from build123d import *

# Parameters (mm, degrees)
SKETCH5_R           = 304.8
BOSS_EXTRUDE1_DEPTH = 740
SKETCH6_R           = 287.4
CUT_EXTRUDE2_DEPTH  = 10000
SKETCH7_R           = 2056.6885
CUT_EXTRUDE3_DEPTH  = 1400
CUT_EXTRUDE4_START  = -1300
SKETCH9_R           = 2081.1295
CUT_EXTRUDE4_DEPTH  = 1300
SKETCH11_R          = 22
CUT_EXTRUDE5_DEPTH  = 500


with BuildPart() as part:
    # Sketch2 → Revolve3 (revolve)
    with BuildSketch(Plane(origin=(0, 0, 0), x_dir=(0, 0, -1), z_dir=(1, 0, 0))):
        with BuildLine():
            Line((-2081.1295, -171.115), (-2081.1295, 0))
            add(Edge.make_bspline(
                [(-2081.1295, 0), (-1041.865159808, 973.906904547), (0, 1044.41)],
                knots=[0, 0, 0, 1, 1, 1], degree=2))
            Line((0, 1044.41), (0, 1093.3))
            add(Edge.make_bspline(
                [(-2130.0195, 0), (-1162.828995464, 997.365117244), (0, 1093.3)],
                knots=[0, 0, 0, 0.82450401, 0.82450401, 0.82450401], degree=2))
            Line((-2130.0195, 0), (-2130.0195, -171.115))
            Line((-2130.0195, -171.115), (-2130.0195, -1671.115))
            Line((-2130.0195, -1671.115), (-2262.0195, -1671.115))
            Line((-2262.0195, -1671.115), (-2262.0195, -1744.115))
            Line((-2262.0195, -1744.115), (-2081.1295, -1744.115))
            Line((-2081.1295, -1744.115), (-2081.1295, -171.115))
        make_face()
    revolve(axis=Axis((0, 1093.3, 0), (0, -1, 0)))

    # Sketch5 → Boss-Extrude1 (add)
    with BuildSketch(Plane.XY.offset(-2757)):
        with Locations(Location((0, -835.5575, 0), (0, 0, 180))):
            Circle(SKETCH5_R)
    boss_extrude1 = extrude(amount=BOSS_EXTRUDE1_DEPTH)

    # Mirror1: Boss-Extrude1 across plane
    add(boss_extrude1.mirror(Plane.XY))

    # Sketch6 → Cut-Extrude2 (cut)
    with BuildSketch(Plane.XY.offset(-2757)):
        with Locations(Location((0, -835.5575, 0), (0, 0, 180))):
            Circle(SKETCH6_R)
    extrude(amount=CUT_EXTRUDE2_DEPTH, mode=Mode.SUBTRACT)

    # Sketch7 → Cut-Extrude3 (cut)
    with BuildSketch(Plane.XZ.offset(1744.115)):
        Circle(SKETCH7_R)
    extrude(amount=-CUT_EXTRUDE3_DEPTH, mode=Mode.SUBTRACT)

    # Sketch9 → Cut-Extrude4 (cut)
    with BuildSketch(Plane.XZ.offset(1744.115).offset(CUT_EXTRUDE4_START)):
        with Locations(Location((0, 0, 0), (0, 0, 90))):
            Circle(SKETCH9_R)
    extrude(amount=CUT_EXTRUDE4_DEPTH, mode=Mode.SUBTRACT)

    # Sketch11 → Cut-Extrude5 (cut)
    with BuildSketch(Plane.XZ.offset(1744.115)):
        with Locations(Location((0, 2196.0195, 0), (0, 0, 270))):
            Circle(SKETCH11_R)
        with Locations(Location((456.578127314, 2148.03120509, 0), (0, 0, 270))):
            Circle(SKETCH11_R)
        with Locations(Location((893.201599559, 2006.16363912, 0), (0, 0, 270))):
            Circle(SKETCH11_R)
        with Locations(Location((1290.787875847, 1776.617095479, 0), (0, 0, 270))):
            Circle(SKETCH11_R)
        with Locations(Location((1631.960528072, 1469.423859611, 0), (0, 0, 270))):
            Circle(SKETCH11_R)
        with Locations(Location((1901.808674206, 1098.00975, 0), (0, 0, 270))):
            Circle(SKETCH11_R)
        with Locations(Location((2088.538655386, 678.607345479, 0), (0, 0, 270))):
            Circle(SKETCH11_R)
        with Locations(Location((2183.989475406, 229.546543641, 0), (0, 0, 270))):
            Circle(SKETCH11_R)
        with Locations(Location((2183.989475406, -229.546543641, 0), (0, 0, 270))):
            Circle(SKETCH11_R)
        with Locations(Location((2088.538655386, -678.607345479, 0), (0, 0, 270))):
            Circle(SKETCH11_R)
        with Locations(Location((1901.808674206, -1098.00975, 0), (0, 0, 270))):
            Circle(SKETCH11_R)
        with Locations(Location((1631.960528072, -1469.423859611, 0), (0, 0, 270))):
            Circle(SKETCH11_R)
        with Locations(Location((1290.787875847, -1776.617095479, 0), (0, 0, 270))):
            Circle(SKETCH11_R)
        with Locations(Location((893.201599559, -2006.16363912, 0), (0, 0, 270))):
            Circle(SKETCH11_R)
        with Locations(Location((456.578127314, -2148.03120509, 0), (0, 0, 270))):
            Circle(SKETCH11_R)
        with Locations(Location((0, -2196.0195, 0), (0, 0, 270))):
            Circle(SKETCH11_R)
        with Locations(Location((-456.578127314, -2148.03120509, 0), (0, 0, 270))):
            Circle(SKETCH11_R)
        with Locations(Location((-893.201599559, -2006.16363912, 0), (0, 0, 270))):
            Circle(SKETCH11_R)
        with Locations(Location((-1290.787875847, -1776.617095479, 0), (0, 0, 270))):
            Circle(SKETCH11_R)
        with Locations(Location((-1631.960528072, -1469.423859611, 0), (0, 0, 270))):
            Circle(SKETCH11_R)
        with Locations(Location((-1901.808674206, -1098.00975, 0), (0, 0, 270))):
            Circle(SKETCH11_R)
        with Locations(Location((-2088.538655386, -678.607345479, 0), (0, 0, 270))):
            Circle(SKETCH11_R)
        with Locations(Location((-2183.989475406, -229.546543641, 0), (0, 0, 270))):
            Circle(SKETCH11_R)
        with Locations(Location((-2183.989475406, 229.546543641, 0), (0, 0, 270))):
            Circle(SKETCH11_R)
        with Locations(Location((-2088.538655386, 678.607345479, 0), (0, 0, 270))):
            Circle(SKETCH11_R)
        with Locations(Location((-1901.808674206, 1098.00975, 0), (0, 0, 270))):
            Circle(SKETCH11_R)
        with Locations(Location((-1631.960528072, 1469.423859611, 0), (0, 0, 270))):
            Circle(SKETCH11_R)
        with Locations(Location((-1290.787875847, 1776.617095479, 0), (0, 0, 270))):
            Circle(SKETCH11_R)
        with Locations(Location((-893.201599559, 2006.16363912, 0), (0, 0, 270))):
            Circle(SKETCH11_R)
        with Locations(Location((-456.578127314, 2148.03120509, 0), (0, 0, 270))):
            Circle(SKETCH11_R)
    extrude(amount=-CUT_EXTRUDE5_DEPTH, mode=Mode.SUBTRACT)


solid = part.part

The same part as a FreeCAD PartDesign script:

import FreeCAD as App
import Part
import Sketcher
Q = App.Units.Quantity

doc = App.newDocument("Part")
body = doc.addObject("PartDesign::Body", "Body")

# Sketch on YZ plane
sketch1 = body.newObject("Sketcher::SketchObject", "Sketch")
sketch1.AttachmentSupport = (doc.getObject("YZ_Plane"), [""])
sketch1.MapMode = "FlatFace"
sketch1.addGeometry([
    Part.BSplineCurve([App.Vector(0, 2081.1295, 0), App.Vector(973.906905, 1041.86516, 0), App.Vector(1044.41, 0, 0)], [3, 3], [0, 1], False, 2, [1, 1, 1], False),  # 0
    Part.LineSegment(App.Vector(1044.41, 0, 0), App.Vector(1093.3, 0, 0)),  # 1
    Part.BSplineCurve([App.Vector(0, 2130.0195, 0), App.Vector(997.365117, 1162.828995, 0), App.Vector(1093.3, 0, 0)], [3, 3], [0, 0.82450401], False, 2, [1, 1, 1], False),  # 2
    Part.LineSegment(App.Vector(0, 2130.0195, 0), App.Vector(-1671.115, 2130.0195, 0)),  # 3
    Part.LineSegment(App.Vector(-1671.115, 2130.0195, 0), App.Vector(-1671.115, 2262.0195, 0)),  # 4
    Part.LineSegment(App.Vector(-1671.115, 2262.0195, 0), App.Vector(-1744.115, 2262.0195, 0)),  # 5
    Part.LineSegment(App.Vector(-1744.115, 2262.0195, 0), App.Vector(-1744.115, 2081.1295, 0)),  # 6
    Part.LineSegment(App.Vector(-1744.115, 2081.1295, 0), App.Vector(0, 2081.1295, 0)),  # 7
], False)
sketch1.addConstraint([
    Sketcher.Constraint("Block", 0),
    Sketcher.Constraint("Block", 2),
    Sketcher.Constraint("Coincident", 0, 2, 1, 1),
    Sketcher.Constraint("Coincident", 1, 2, 2, 2),
    Sketcher.Constraint("Coincident", 2, 1, 3, 1),
    Sketcher.Constraint("Coincident", 3, 2, 4, 1),
    Sketcher.Constraint("Coincident", 4, 2, 5, 1),
    Sketcher.Constraint("Coincident", 5, 2, 6, 1),
    Sketcher.Constraint("Coincident", 6, 2, 7, 1),
    Sketcher.Constraint("Coincident", 7, 2, 0, 1),
    Sketcher.Constraint("Horizontal", 3),
    Sketcher.Constraint("Vertical", 4),
    Sketcher.Constraint("Horizontal", 5),
    Sketcher.Constraint("Vertical", 6),
    Sketcher.Constraint("Horizontal", 7),
    Sketcher.Constraint("DistanceX", 5, 2, 5, 1, Q("73 mm")),
    Sketcher.Constraint("DistanceY", 4, 1, 4, 2, Q("132 mm")),
    Sketcher.Constraint("DistanceX", 3, 2, 3, 1, Q("1671.115 mm")),
])
revolution = body.newObject("PartDesign::Revolution", "Revolution")
revolution.Profile = sketch1
revolution.ReferenceAxis = (sketch1, ["H_Axis"])
revolution.Angle = 360

# Sketch on XY plane
sketch2 = body.newObject("Sketcher::SketchObject", "Sketch001")
sketch2.AttachmentSupport = (doc.getObject("XY_Plane"), [""])
sketch2.MapMode = "FlatFace"
sketch2.AttachmentOffset = App.Placement(App.Vector(0, 0, -2757), App.Rotation())
sketch2.addGeometry(Part.Circle(App.Vector(0, -835.5575, 0), App.Vector(0, 0, 1), 304.8), False)
sketch2.addConstraint([
    Sketcher.Constraint("PointOnObject", 0, 3, -2),
    Sketcher.Constraint("Diameter", 0, Q("609.6 mm")),
    Sketcher.Constraint("DistanceY", 0, 3, -1, 1, Q("835.5575 mm")),
])
pad1 = body.newObject("PartDesign::Pad", "Pad")
pad1.Profile = sketch2
pad1.Length = 740
doc.recompute()

mirrored = body.newObject("PartDesign::Mirrored", "Mirrored")
mirrored.Originals = [pad1]
mirrored.MirrorPlane = (doc.getObject("XY_Plane"), [""])
body.Tip = mirrored

# Sketch on XY plane
sketch3 = body.newObject("Sketcher::SketchObject", "Sketch002")
sketch3.AttachmentSupport = (doc.getObject("XY_Plane"), [""])
sketch3.MapMode = "FlatFace"
sketch3.AttachmentOffset = App.Placement(App.Vector(0, 0, -2757), App.Rotation())
sketch3.addGeometry(Part.Circle(App.Vector(0, -835.5575, 0), App.Vector(0, 0, 1), 287.4), False)
sketch3.addConstraint([
    Sketcher.Constraint("PointOnObject", 0, 3, -2),
    Sketcher.Constraint("Diameter", 0, Q("574.8 mm")),
    Sketcher.Constraint("DistanceY", 0, 3, -1, 1, Q("835.5575 mm")),
])
pocket1 = body.newObject("PartDesign::Pocket", "Pocket")
pocket1.Profile = sketch3
pocket1.Length = 10000
pocket1.Reversed = True

# Sketch on XZ plane
sketch4 = body.newObject("Sketcher::SketchObject", "Sketch003")
sketch4.AttachmentSupport = (doc.getObject("XZ_Plane"), [""])
sketch4.MapMode = "FlatFace"
sketch4.AttachmentOffset = App.Placement(App.Vector(0, 0, 1744.115), App.Rotation())
sketch4.addGeometry(Part.Circle(App.Vector(0, 0, 0), App.Vector(0, 0, 1), 2056.6885), False)
sketch4.addConstraint([
    Sketcher.Constraint("Coincident", 0, 3, -1, 1),
    Sketcher.Constraint("Diameter", 0, Q("4113.377 mm")),
])
pocket2 = body.newObject("PartDesign::Pocket", "Pocket001")
pocket2.Profile = sketch4
pocket2.Length = 1400

# Sketch on XZ plane
sketch5 = body.newObject("Sketcher::SketchObject", "Sketch004")
sketch5.AttachmentSupport = (doc.getObject("XZ_Plane"), [""])
sketch5.MapMode = "FlatFace"
sketch5.AttachmentOffset = App.Placement(App.Vector(0, 0, 444.115), App.Rotation())
sketch5.addGeometry(Part.Circle(App.Vector(0, 0, 0), App.Vector(0, 0, 1), 2081.1295), False)
sketch5.addConstraint([
    Sketcher.Constraint("Coincident", 0, 3, -1, 1),
    Sketcher.Constraint("Diameter", 0, Q("4162.259 mm")),
])
pocket3 = body.newObject("PartDesign::Pocket", "Pocket002")
pocket3.Profile = sketch5
pocket3.Length = 1300
pocket3.Reversed = True

# Sketch on XZ plane
sketch6 = body.newObject("Sketcher::SketchObject", "Sketch005")
sketch6.AttachmentSupport = (doc.getObject("XZ_Plane"), [""])
sketch6.MapMode = "FlatFace"
sketch6.AttachmentOffset = App.Placement(App.Vector(0, 0, 1744.115), App.Rotation())
sketch6.addGeometry([
    Part.Circle(App.Vector(0, 2196.0195, 0), App.Vector(0, 0, 1), 22),  # 0
    Part.Circle(App.Vector(456.578127, 2148.031205, 0), App.Vector(0, 0, 1), 22),  # 1
    Part.Circle(App.Vector(893.2016, 2006.163639, 0), App.Vector(0, 0, 1), 22),  # 2
    Part.Circle(App.Vector(1290.787876, 1776.617095, 0), App.Vector(0, 0, 1), 22),  # 3
    Part.Circle(App.Vector(1631.960528, 1469.42386, 0), App.Vector(0, 0, 1), 22),  # 4
    Part.Circle(App.Vector(1901.808674, 1098.00975, 0), App.Vector(0, 0, 1), 22),  # 5
    Part.Circle(App.Vector(2088.538655, 678.607345, 0), App.Vector(0, 0, 1), 22),  # 6
    Part.Circle(App.Vector(2183.989475, 229.546544, 0), App.Vector(0, 0, 1), 22),  # 7
    Part.Circle(App.Vector(2183.989475, -229.546544, 0), App.Vector(0, 0, 1), 22),  # 8
    Part.Circle(App.Vector(2088.538655, -678.607345, 0), App.Vector(0, 0, 1), 22),  # 9
    Part.Circle(App.Vector(1901.808674, -1098.00975, 0), App.Vector(0, 0, 1), 22),  # 10
    Part.Circle(App.Vector(1631.960528, -1469.42386, 0), App.Vector(0, 0, 1), 22),  # 11
    Part.Circle(App.Vector(1290.787876, -1776.617095, 0), App.Vector(0, 0, 1), 22),  # 12
    Part.Circle(App.Vector(893.2016, -2006.163639, 0), App.Vector(0, 0, 1), 22),  # 13
    Part.Circle(App.Vector(456.578127, -2148.031205, 0), App.Vector(0, 0, 1), 22),  # 14
    Part.Circle(App.Vector(0, -2196.0195, 0), App.Vector(0, 0, 1), 22),  # 15
    Part.Circle(App.Vector(-456.578127, -2148.031205, 0), App.Vector(0, 0, 1), 22),  # 16
    Part.Circle(App.Vector(-893.2016, -2006.163639, 0), App.Vector(0, 0, 1), 22),  # 17
    Part.Circle(App.Vector(-1290.787876, -1776.617095, 0), App.Vector(0, 0, 1), 22),  # 18
    Part.Circle(App.Vector(-1631.960528, -1469.42386, 0), App.Vector(0, 0, 1), 22),  # 19
    Part.Circle(App.Vector(-1901.808674, -1098.00975, 0), App.Vector(0, 0, 1), 22),  # 20
    Part.Circle(App.Vector(-2088.538655, -678.607345, 0), App.Vector(0, 0, 1), 22),  # 21
    Part.Circle(App.Vector(-2183.989475, -229.546544, 0), App.Vector(0, 0, 1), 22),  # 22
    Part.Circle(App.Vector(-2183.989475, 229.546544, 0), App.Vector(0, 0, 1), 22),  # 23
    Part.Circle(App.Vector(-2088.538655, 678.607345, 0), App.Vector(0, 0, 1), 22),  # 24
    Part.Circle(App.Vector(-1901.808674, 1098.00975, 0), App.Vector(0, 0, 1), 22),  # 25
    Part.Circle(App.Vector(-1631.960528, 1469.42386, 0), App.Vector(0, 0, 1), 22),  # 26
    Part.Circle(App.Vector(-1290.787876, 1776.617095, 0), App.Vector(0, 0, 1), 22),  # 27
    Part.Circle(App.Vector(-893.2016, 2006.163639, 0), App.Vector(0, 0, 1), 22),  # 28
    Part.Circle(App.Vector(-456.578127, 2148.031205, 0), App.Vector(0, 0, 1), 22),  # 29
], False)
sketch6.addConstraint([
    Sketcher.Constraint("Equal", 0, 1),
    Sketcher.Constraint("Equal", 1, 2),
    Sketcher.Constraint("Equal", 2, 3),
    Sketcher.Constraint("Equal", 3, 4),
    Sketcher.Constraint("Equal", 4, 5),
    Sketcher.Constraint("Equal", 5, 6),
    Sketcher.Constraint("Equal", 6, 7),
    Sketcher.Constraint("Equal", 7, 8),
    Sketcher.Constraint("Equal", 8, 9),
    Sketcher.Constraint("Equal", 9, 10),
    Sketcher.Constraint("Equal", 10, 11),
    Sketcher.Constraint("Equal", 11, 12),
    Sketcher.Constraint("Equal", 12, 13),
    Sketcher.Constraint("Equal", 13, 14),
    Sketcher.Constraint("Equal", 14, 15),
    Sketcher.Constraint("Equal", 15, 16),
    Sketcher.Constraint("Equal", 16, 17),
    Sketcher.Constraint("Equal", 17, 18),
    Sketcher.Constraint("Equal", 18, 19),
    Sketcher.Constraint("Equal", 19, 20),
    Sketcher.Constraint("Equal", 20, 21),
    Sketcher.Constraint("Equal", 21, 22),
    Sketcher.Constraint("Equal", 22, 23),
    Sketcher.Constraint("Equal", 23, 24),
    Sketcher.Constraint("Equal", 24, 25),
    Sketcher.Constraint("Equal", 25, 26),
    Sketcher.Constraint("Equal", 26, 27),
    Sketcher.Constraint("Equal", 27, 28),
    Sketcher.Constraint("Equal", 28, 29),
    Sketcher.Constraint("Symmetric", 0, 3, 15, 3, -1, 1),
    Sketcher.Constraint("Symmetric", 1, 3, 16, 3, -1, 1),
    Sketcher.Constraint("Symmetric", 2, 3, 17, 3, -1, 1),
    Sketcher.Constraint("Symmetric", 3, 3, 18, 3, -1, 1),
    Sketcher.Constraint("Symmetric", 4, 3, 19, 3, -1, 1),
    Sketcher.Constraint("Symmetric", 5, 3, 20, 3, -1, 1),
    Sketcher.Constraint("Symmetric", 6, 3, 21, 3, -1, 1),
    Sketcher.Constraint("Symmetric", 7, 3, 22, 3, -1, 1),
    Sketcher.Constraint("Symmetric", 8, 3, 23, 3, -1, 1),
    Sketcher.Constraint("Symmetric", 9, 3, 24, 3, -1, 1),
    Sketcher.Constraint("Symmetric", 10, 3, 25, 3, -1, 1),
    Sketcher.Constraint("Symmetric", 11, 3, 26, 3, -1, 1),
    Sketcher.Constraint("Symmetric", 12, 3, 27, 3, -1, 1),
    Sketcher.Constraint("Symmetric", 13, 3, 28, 3, -1, 1),
    Sketcher.Constraint("Symmetric", 14, 3, 29, 3, -1, 1),
    Sketcher.Constraint("Symmetric", 14, 3, 16, 3, -2),
    Sketcher.Constraint("Symmetric", 13, 3, 17, 3, -2),
    Sketcher.Constraint("Symmetric", 12, 3, 18, 3, -2),
    Sketcher.Constraint("Symmetric", 11, 3, 19, 3, -2),
    Sketcher.Constraint("Symmetric", 10, 3, 20, 3, -2),
    Sketcher.Constraint("Symmetric", 9, 3, 21, 3, -2),
    Sketcher.Constraint("Symmetric", 8, 3, 22, 3, -2),
    Sketcher.Constraint("PointOnObject", 0, 3, -2),
    Sketcher.Constraint("Diameter", 0, Q("44 mm")),
    Sketcher.Constraint("DistanceY", -1, 1, 0, 3, Q("2196.0195 mm")),
    Sketcher.Constraint("DistanceX", -1, 1, 2, 3, Q("893.2016 mm")),
    Sketcher.Constraint("DistanceX", 1, 3, 4, 3, Q("1175.382401 mm")),
    Sketcher.Constraint("DistanceX", 3, 3, 5, 3, Q("611.020798 mm")),
    Sketcher.Constraint("DistanceY", 7, 3, 6, 3, Q("449.060802 mm")),
    Sketcher.Constraint("DistanceX", 5, 3, 7, 3, Q("282.180801 mm")),
    Sketcher.Constraint("DistanceY", 10, 3, 5, 3, Q("2196.0195 mm")),
    Sketcher.Constraint("DistanceY", -1, 1, 2, 3, Q("2006.163639 mm")),
    Sketcher.Constraint("DistanceX", -1, 1, 4, 3, Q("1631.960528 mm")),
    Sketcher.Constraint("DistanceY", -1, 1, 4, 3, Q("1469.42386 mm")),
    Sketcher.Constraint("DistanceX", 1, 3, 3, 3, Q("834.209749 mm")),
    Sketcher.Constraint("DistanceY", 3, 3, 1, 3, Q("371.41411 mm")),
    Sketcher.Constraint("DistanceX", 5, 3, 6, 3, Q("186.729981 mm")),
    Sketcher.Constraint("DistanceY", 6, 3, 3, 3, Q("1098.00975 mm")),
    Sketcher.Constraint("DistanceY", 8, 3, 6, 3, Q("908.153889 mm")),
])
pocket4 = body.newObject("PartDesign::Pocket", "Pocket003")
pocket4.Profile = sketch6
pocket4.Length = 500

doc.recompute()
